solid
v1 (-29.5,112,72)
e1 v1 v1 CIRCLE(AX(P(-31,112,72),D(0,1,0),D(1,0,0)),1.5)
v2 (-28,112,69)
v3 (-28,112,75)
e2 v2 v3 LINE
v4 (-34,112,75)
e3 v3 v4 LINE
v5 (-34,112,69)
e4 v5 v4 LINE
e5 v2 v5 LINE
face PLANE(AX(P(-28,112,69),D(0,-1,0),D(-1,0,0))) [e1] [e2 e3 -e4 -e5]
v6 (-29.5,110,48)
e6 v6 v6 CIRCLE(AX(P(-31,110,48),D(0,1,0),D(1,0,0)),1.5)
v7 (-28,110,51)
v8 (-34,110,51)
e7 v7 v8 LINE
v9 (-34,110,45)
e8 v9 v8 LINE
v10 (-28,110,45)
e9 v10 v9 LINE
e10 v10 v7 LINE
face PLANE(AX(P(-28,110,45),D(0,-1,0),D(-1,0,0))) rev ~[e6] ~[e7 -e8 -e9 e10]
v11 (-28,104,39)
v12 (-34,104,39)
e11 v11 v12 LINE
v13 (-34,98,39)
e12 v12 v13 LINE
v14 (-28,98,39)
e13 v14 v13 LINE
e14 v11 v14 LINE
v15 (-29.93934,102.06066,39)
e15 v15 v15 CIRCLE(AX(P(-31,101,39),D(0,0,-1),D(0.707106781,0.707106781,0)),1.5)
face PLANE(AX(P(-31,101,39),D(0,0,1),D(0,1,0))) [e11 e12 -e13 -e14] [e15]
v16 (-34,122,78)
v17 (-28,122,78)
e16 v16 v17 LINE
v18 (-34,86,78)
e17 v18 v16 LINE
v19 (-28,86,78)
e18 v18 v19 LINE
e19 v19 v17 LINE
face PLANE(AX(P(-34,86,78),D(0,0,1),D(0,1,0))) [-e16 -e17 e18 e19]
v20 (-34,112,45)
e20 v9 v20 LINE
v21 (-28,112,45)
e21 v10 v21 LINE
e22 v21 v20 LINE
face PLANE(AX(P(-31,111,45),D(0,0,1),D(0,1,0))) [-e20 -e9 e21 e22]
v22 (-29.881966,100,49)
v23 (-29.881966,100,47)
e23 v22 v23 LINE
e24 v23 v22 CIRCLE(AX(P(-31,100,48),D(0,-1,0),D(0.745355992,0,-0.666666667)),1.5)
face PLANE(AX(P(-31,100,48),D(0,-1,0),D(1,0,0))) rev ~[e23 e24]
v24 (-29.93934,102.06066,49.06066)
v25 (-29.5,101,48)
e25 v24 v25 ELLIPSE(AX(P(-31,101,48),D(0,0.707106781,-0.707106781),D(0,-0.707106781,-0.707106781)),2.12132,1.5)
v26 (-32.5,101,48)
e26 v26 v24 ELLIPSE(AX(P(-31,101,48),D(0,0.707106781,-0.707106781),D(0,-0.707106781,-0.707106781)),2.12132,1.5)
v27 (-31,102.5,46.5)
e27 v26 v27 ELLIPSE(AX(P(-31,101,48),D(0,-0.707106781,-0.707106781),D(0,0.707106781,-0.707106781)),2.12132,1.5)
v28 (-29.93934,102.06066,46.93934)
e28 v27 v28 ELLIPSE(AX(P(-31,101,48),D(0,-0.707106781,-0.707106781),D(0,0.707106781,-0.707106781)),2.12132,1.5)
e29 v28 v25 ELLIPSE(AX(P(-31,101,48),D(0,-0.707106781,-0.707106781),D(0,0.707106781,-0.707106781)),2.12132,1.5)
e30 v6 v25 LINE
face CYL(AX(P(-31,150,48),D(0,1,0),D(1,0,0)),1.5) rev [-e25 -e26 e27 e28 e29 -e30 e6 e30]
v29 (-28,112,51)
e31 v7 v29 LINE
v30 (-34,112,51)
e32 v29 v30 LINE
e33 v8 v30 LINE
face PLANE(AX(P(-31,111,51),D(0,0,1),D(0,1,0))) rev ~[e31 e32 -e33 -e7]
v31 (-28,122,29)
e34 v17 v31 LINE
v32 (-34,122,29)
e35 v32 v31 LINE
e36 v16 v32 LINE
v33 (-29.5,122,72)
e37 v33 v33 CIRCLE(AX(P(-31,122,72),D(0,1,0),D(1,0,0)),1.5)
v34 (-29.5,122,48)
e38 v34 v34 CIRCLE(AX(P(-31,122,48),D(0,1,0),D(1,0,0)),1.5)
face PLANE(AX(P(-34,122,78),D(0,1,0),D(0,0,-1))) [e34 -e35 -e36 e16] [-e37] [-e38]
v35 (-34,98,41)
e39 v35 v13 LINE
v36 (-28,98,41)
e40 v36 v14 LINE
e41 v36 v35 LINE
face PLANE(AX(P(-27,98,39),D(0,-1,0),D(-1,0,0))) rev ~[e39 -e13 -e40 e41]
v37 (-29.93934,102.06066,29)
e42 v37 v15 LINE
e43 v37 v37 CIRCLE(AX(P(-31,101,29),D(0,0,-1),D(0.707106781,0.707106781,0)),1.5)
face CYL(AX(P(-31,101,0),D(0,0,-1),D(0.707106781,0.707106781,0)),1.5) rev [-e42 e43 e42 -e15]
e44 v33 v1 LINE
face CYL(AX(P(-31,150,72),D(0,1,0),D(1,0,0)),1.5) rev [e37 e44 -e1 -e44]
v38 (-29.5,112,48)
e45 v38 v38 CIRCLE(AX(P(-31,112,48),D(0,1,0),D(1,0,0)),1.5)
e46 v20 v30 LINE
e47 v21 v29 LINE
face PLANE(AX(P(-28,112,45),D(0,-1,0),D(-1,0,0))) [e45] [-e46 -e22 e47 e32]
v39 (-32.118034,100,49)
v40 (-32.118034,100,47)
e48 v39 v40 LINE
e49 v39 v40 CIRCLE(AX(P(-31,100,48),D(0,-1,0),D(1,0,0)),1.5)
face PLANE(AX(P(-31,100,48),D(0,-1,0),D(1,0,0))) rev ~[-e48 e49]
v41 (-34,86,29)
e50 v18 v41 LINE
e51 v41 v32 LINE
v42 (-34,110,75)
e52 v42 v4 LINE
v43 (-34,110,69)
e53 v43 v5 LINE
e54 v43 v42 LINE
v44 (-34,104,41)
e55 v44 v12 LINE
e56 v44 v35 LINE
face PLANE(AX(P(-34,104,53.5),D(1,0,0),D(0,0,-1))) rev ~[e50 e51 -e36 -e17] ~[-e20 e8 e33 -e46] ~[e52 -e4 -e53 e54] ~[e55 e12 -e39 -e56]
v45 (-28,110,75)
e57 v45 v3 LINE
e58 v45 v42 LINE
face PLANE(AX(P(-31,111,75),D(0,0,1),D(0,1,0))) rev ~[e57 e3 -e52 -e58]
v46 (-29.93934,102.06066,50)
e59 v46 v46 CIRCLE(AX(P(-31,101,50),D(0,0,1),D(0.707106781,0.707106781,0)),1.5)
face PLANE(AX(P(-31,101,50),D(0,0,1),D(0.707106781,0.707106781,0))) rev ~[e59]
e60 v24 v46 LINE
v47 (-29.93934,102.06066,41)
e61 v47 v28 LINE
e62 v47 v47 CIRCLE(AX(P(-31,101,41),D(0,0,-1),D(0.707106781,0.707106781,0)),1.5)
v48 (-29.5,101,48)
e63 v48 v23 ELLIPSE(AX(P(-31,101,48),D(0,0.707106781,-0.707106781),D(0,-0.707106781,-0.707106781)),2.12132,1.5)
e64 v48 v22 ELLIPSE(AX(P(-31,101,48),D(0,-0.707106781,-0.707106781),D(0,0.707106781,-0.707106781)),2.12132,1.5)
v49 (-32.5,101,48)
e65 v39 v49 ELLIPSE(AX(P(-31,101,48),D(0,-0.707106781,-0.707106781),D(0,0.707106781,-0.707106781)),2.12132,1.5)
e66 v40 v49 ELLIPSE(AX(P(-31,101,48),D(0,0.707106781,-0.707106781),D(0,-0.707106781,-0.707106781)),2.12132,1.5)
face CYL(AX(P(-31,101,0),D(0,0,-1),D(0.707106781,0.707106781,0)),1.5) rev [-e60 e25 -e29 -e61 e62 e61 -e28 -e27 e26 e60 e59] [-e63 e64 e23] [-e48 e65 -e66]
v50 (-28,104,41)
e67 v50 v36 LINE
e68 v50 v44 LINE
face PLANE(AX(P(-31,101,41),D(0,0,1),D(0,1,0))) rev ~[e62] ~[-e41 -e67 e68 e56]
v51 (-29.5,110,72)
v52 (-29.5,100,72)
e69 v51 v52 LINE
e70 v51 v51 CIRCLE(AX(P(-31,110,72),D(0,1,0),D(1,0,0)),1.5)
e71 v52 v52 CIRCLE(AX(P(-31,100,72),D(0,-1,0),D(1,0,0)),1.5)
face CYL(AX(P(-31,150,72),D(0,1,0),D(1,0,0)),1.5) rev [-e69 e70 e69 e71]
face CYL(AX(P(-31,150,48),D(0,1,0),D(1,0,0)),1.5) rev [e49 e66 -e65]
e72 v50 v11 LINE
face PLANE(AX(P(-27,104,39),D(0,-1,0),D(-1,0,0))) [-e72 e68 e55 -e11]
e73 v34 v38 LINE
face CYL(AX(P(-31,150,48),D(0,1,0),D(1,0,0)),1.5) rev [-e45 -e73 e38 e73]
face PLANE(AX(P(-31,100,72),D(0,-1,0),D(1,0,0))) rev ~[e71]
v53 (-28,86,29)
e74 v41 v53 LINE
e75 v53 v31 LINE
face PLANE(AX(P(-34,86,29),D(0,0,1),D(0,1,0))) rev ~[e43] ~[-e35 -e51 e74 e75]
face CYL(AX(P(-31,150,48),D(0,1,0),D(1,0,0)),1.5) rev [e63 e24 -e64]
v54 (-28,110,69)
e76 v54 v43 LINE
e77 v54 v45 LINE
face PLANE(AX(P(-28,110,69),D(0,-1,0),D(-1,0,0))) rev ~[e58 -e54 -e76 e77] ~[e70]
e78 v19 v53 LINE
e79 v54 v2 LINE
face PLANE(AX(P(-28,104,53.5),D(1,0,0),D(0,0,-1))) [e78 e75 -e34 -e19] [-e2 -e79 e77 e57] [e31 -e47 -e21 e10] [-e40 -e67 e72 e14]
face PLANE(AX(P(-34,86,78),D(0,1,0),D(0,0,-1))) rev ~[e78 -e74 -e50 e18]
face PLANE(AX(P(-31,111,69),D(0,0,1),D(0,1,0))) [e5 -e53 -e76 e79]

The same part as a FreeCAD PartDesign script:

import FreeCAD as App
import Part
import Sketcher

V = App.Vector
Q = App.Units.Quantity


def add_polygon(sketch, points):
    """Adds a closed chain of lines whose ends are joined by coincident constraints."""
    first, n = sketch.GeometryCount, len(points)
    for a, b in zip(points, points[1:] + points[:1]):
        sketch.addGeometry(Part.LineSegment(App.Vector(*a, 0), App.Vector(*b, 0)), False)
    for i in range(n):
        sketch.addConstraint(Sketcher.Constraint("Coincident", first + i, 2, first + (i + 1) % n, 1))

doc = App.newDocument("Part")
body = doc.addObject("PartDesign::Body", "Body")

sketch1 = body.newObject("Sketcher::SketchObject", "Sketch")
sketch1.AttachmentSupport = (doc.getObject("XZ_Plane"), [""])
sketch1.MapMode = "FlatFace"
sketch1.AttachmentOffset = App.Placement(V(0, 0, -150), App.Rotation())
sketch1.addGeometry(Part.Circle(V(-31, 72, 0), V(0, 0, 1), 1.5), False)
sketch1.addConstraint(Sketcher.Constraint("Diameter", 0, Q("3 mm")))
sketch1.addConstraint(Sketcher.Constraint("DistanceX", 0, 3, -1, 1, Q("31 mm")))
sketch1.addConstraint(Sketcher.Constraint("DistanceY", -1, 1, 0, 3, Q("72 mm")))
pad1 = body.newObject("PartDesign::Pad", "Pad")
pad1.Profile = sketch1
pad1.Length = 50
body2 = doc.addObject("PartDesign::Body", "Body001")

sketch2 = body2.newObject("Sketcher::SketchObject", "Sketch001")
sketch2.AttachmentSupport = (doc.getObject("XZ_Plane001"), [""])
sketch2.MapMode = "FlatFace"
sketch2.AttachmentOffset = App.Placement(V(0, 0, -150), App.Rotation())
sketch2.addGeometry(Part.Circle(V(31, 48, 0), V(0, 0, 1), 1.5), False)
sketch2.addConstraint(Sketcher.Constraint("Diameter", 0, Q("3 mm")))
sketch2.addConstraint(Sketcher.Constraint("DistanceX", -1, 1, 0, 3, Q("31 mm")))
sketch2.addConstraint(Sketcher.Constraint("DistanceY", -1, 1, 0, 3, Q("48 mm")))
pad2 = body2.newObject("PartDesign::Pad", "Pad001")
pad2.Profile = sketch2
pad2.Length = 50
body3 = doc.addObject("PartDesign::Body", "Body002")

sketch3 = body3.newObject("Sketcher::SketchObject", "Sketch002")
sketch3.AttachmentSupport = (doc.getObject("XZ_Plane002"), [""])
sketch3.MapMode = "FlatFace"
sketch3.AttachmentOffset = App.Placement(V(0, 0, -150), App.Rotation())
sketch3.addGeometry(Part.Circle(V(31, 72, 0), V(0, 0, 1), 1.5), False)
sketch3.addConstraint(Sketcher.Constraint("Diameter", 0, Q("3 mm")))
sketch3.addConstraint(Sketcher.Constraint("DistanceX", -1, 1, 0, 3, Q("31 mm")))
sketch3.addConstraint(Sketcher.Constraint("DistanceY", -1, 1, 0, 3, Q("72 mm")))
pad3 = body3.newObject("PartDesign::Pad", "Pad002")
pad3.Profile = sketch3
pad3.Length = 50
body4 = doc.addObject("PartDesign::Body", "Body003")
body4.AllowCompound = True

sketch4 = body4.newObject("Sketcher::SketchObject", "Sketch003")
sketch4.AttachmentSupport = (doc.getObject("XZ_Plane003"), [""])
sketch4.MapMode = "FlatFace"
sketch4.AttachmentOffset = App.Placement(V(0, 0, -150), App.Rotation())
sketch4.addGeometry(Part.Circle(V(-31, 48, 0), V(0, 0, 1), 1.5), False)
sketch4.addConstraint(Sketcher.Constraint("Diameter", 0, Q("3 mm")))
sketch4.addConstraint(Sketcher.Constraint("DistanceX", 0, 3, -1, 1, Q("31 mm")))
sketch4.addConstraint(Sketcher.Constraint("DistanceY", -1, 1, 0, 3, Q("48 mm")))
pad4 = body4.newObject("PartDesign::Pad", "Pad003")
pad4.Profile = sketch4
pad4.Length = 50
doc.recompute()

boolean = body4.newObject("PartDesign::Boolean", "Boolean")
boolean.Type = "Fuse"
boolean.addObjects([body])
doc.recompute()

boolean2 = body4.newObject("PartDesign::Boolean", "Boolean001")
boolean2.Type = "Fuse"
boolean2.addObjects([body2])
doc.recompute()

boolean3 = body4.newObject("PartDesign::Boolean", "Boolean002")
boolean3.Type = "Fuse"
boolean3.addObjects([body3])
body5 = doc.addObject("PartDesign::Body", "Body004")

sketch5 = body5.newObject("Sketcher::SketchObject", "Sketch004")
sketch5.AttachmentSupport = (doc.getObject("XY_Plane004"), [""])
sketch5.MapMode = "FlatFace"
sketch5.AttachmentOffset = App.Placement(V(0, 0, 69), App.Rotation())
add_polygon(sketch5, [(-34, 110), (-28, 110), (-28, 112), (-34, 112)])
sketch5.addConstraint(Sketcher.Constraint("Horizontal", 0))
sketch5.addConstraint(Sketcher.Constraint("Vertical", 1))
sketch5.addConstraint(Sketcher.Constraint("Horizontal", 2))
sketch5.addConstraint(Sketcher.Constraint("Vertical", 3))
sketch5.addConstraint(Sketcher.Constraint("DistanceX", 0, 1, 0, 2, Q("6 mm")))
sketch5.addConstraint(Sketcher.Constraint("DistanceY", 1, 1, 1, 2, Q("2 mm")))
sketch5.addConstraint(Sketcher.Constraint("DistanceX", 0, 2, -1, 1, Q("28 mm")))
sketch5.addConstraint(Sketcher.Constraint("DistanceY", -1, 1, 0, 2, Q("110 mm")))
pad5 = body5.newObject("PartDesign::Pad", "Pad004")
pad5.Profile = sketch5
pad5.Length = 6
body6 = doc.addObject("PartDesign::Body", "Body005")

sketch6 = body6.newObject("Sketcher::SketchObject", "Sketch005")
sketch6.AttachmentSupport = (doc.getObject("XY_Plane005"), [""])
sketch6.MapMode = "FlatFace"
sketch6.AttachmentOffset = App.Placement(V(0, 0, 45), App.Rotation())
add_polygon(sketch6, [(28, 110), (34, 110), (34, 112), (28, 112)])
sketch6.addConstraint(Sketcher.Constraint("Horizontal", 0))
sketch6.addConstraint(Sketcher.Constraint("Vertical", 1))
sketch6.addConstraint(Sketcher.Constraint("Horizontal", 2))
sketch6.addConstraint(Sketcher.Constraint("Vertical", 3))
sketch6.addConstraint(Sketcher.Constraint("DistanceX", 0, 1, 0, 2, Q("6 mm")))
sketch6.addConstraint(Sketcher.Constraint("DistanceY", 1, 1, 1, 2, Q("2 mm")))
sketch6.addConstraint(Sketcher.Constraint("DistanceX", -1, 1, 0, 2, Q("34 mm")))
sketch6.addConstraint(Sketcher.Constraint("DistanceY", -1, 1, 0, 2, Q("110 mm")))
pad6 = body6.newObject("PartDesign::Pad", "Pad005")
pad6.Profile = sketch6
pad6.Length = 6
body7 = doc.addObject("PartDesign::Body", "Body006")

sketch7 = body7.newObject("Sketcher::SketchObject", "Sketch006")
sketch7.AttachmentSupport = (doc.getObject("XY_Plane006"), [""])
sketch7.MapMode = "FlatFace"
sketch7.AttachmentOffset = App.Placement(V(0, 0, 69), App.Rotation())
add_polygon(sketch7, [(28, 110), (34, 110), (34, 112), (28, 112)])
sketch7.addConstraint(Sketcher.Constraint("Horizontal", 0))
sketch7.addConstraint(Sketcher.Constraint("Vertical", 1))
sketch7.addConstraint(Sketcher.Constraint("Horizontal", 2))
sketch7.addConstraint(Sketcher.Constraint("Vertical", 3))
sketch7.addConstraint(Sketcher.Constraint("DistanceX", 0, 1, 0, 2, Q("6 mm")))
sketch7.addConstraint(Sketcher.Constraint("DistanceY", 1, 1, 1, 2, Q("2 mm")))
sketch7.addConstraint(Sketcher.Constraint("DistanceX", -1, 1, 0, 2, Q("34 mm")))
sketch7.addConstraint(Sketcher.Constraint("DistanceY", -1, 1, 0, 2, Q("110 mm")))
pad7 = body7.newObject("PartDesign::Pad", "Pad006")
pad7.Profile = sketch7
pad7.Length = 6
body8 = doc.addObject("PartDesign::Body", "Body007")
body8.AllowCompound = True

sketch8 = body8.newObject("Sketcher::SketchObject", "Sketch007")
sketch8.AttachmentSupport = (doc.getObject("XY_Plane007"), [""])
sketch8.MapMode = "FlatFace"
sketch8.AttachmentOffset = App.Placement(V(0, 0, 45), App.Rotation())
add_polygon(sketch8, [(-34, 110), (-28, 110), (-28, 112), (-34, 112)])
sketch8.addConstraint(Sketcher.Constraint("Horizontal", 0))
sketch8.addConstraint(Sketcher.Constraint("Vertical", 1))
sketch8.addConstraint(Sketcher.Constraint("Horizontal", 2))
sketch8.addConstraint(Sketcher.Constraint("Vertical", 3))
sketch8.addConstraint(Sketcher.Constraint("DistanceX", 0, 1, 0, 2, Q("6 mm")))
sketch8.addConstraint(Sketcher.Constraint("DistanceY", 1, 1, 1, 2, Q("2 mm")))
sketch8.addConstraint(Sketcher.Constraint("DistanceX", 0, 2, -1, 1, Q("28 mm")))
sketch8.addConstraint(Sketcher.Constraint("DistanceY", -1, 1, 0, 2, Q("110 mm")))
pad8 = body8.newObject("PartDesign::Pad", "Pad007")
pad8.Profile = sketch8
pad8.Length = 6
doc.recompute()

boolean4 = body8.newObject("PartDesign::Boolean", "Boolean003")
boolean4.Type = "Fuse"
boolean4.addObjects([body5])
doc.recompute()

boolean5 = body8.newObject("PartDesign::Boolean", "Boolean004")
boolean5.Type = "Fuse"
boolean5.addObjects([body6])
doc.recompute()

boolean6 = body8.newObject("PartDesign::Boolean", "Boolean005")
boolean6.Type = "Fuse"
boolean6.addObjects([body7])
body9 = doc.addObject("PartDesign::Body", "Body008")

sketch9 = body9.newObject("Sketcher::SketchObject", "Sketch008")
sketch9.AttachmentSupport = (doc.getObject("XY_Plane008"), [""])
sketch9.MapMode = "FlatFace"
sketch9.addGeometry(Part.Circle(V(0, 0, 0), V(0, 0, 1), 1.5), False)
sketch9.addConstraint(Sketcher.Constraint("Coincident", 0, 3, -1, 1))
sketch9.addConstraint(Sketcher.Constraint("Diameter", 0, Q("3 mm")))
pad9 = body9.newObject("PartDesign::Pad", "Pad008")
pad9.Profile = sketch9
pad9.Length = 50
body10 = doc.addObject("PartDesign::Body", "Body009")
doc.recompute()

body9.Placement = App.Placement(V(-31, 101, 0), App.Rotation(V(0, 0, 1), 45))
boolean7 = body10.newObject("PartDesign::Boolean", "Boolean006")
boolean7.Type = "Fuse"
boolean7.addObjects([body9])
body11 = doc.addObject("PartDesign::Body", "Body010")

sketch10 = body11.newObject("Sketcher::SketchObject", "Sketch009")
sketch10.AttachmentSupport = (doc.getObject("XY_Plane010"), [""])
sketch10.MapMode = "FlatFace"
sketch10.AttachmentOffset = App.Placement(V(0, 0, 39), App.Rotation())
add_polygon(sketch10, [(-35, 98), (-27, 98), (-27, 104), (-35, 104)])
sketch10.addConstraint(Sketcher.Constraint("Horizontal", 0))
sketch10.addConstraint(Sketcher.Constraint("Vertical", 1))
sketch10.addConstraint(Sketcher.Constraint("Horizontal", 2))
sketch10.addConstraint(Sketcher.Constraint("Vertical", 3))
sketch10.addConstraint(Sketcher.Constraint("DistanceX", 0, 1, 0, 2, Q("8 mm")))
sketch10.addConstraint(Sketcher.Constraint("DistanceY", 1, 1, 1, 2, Q("6 mm")))
sketch10.addConstraint(Sketcher.Constraint("DistanceX", 0, 2, -1, 1, Q("27 mm")))
sketch10.addConstraint(Sketcher.Constraint("DistanceY", -1, 1, 0, 2, Q("98 mm")))
pad10 = body11.newObject("PartDesign::Pad", "Pad009")
pad10.Profile = sketch10
pad10.Length = 2
body12 = doc.addObject("PartDesign::Body", "Body011")

sketch11 = body12.newObject("Sketcher::SketchObject", "Sketch010")
sketch11.AttachmentSupport = (doc.getObject("YZ_Plane011"), [""])
sketch11.MapMode = "FlatFace"
sketch11.AttachmentOffset = App.Placement(V(0, 0, -34), App.Rotation())
add_polygon(sketch11, [(122, 78), (86, 78), (86, 29), (122, 29)])
sketch11.addConstraint(Sketcher.Constraint("Horizontal", 0))
sketch11.addConstraint(Sketcher.Constraint("Vertical", 1))
sketch11.addConstraint(Sketcher.Constraint("Horizontal", 2))
sketch11.addConstraint(Sketcher.Constraint("Vertical", 3))
sketch11.addConstraint(Sketcher.Constraint("DistanceX", 0, 2, 0, 1, Q("36 mm")))
sketch11.addConstraint(Sketcher.Constraint("DistanceY", 1, 2, 1, 1, Q("49 mm")))
sketch11.addConstraint(Sketcher.Constraint("DistanceX", -1, 1, 0, 2, Q("86 mm")))
sketch11.addConstraint(Sketcher.Constraint("DistanceY", -1, 1, 0, 2, Q("78 mm")))
pad11 = body12.newObject("PartDesign::Pad", "Pad010")
pad11.Profile = sketch11
pad11.Length = 6
doc.recompute()

boolean8 = body12.newObject("PartDesign::Boolean", "Boolean007")
boolean8.Type = "Cut"
boolean8.addObjects([body11])
doc.recompute()

boolean9 = body12.newObject("PartDesign::Boolean", "Boolean008")
boolean9.Type = "Cut"
boolean9.addObjects([body10])
doc.recompute()

boolean10 = body12.newObject("PartDesign::Boolean", "Boolean009")
boolean10.Type = "Cut"
boolean10.addObjects([body8])
doc.recompute()

boolean11 = body12.newObject("PartDesign::Boolean", "Boolean010")
boolean11.Type = "Cut"
boolean11.addObjects([body4])

doc.recompute()
